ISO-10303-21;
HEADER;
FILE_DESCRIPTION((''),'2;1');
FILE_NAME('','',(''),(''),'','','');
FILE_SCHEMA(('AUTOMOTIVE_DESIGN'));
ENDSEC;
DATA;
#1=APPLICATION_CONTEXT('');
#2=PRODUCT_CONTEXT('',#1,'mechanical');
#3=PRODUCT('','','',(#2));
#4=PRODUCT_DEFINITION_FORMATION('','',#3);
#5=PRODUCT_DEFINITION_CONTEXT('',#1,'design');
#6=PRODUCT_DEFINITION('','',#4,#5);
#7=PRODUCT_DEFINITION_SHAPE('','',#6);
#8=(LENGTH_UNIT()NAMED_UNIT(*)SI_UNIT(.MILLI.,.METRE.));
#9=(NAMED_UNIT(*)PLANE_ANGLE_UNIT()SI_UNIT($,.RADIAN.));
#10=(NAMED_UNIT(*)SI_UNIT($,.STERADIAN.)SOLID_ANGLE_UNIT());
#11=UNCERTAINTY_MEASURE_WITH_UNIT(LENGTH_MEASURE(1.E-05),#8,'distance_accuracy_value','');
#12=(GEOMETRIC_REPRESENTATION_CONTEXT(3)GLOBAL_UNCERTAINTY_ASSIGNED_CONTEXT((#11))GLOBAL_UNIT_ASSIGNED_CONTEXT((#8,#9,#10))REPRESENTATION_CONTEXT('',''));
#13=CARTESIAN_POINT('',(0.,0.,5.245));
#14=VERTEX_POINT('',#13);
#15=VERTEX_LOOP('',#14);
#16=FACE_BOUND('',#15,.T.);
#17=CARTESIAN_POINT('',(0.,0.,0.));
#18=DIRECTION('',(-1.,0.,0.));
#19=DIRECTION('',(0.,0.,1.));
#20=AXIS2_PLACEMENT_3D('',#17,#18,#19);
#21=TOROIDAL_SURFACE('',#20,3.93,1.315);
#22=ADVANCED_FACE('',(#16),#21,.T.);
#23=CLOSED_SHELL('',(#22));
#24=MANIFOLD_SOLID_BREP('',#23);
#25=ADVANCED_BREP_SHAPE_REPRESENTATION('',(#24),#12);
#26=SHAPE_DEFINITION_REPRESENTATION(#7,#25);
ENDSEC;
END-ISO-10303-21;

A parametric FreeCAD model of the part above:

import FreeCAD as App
import Part
import Sketcher
from FreeCAD import Vector
Q = App.Units.Quantity

doc = App.newDocument("Part")
body = doc.addObject("PartDesign::Body", "Body")

# Sketch on XY plane
sketch1 = doc.addObject("Sketcher::SketchObject", "Sketch")
body.addObject(sketch1)
sketch1.AttachmentSupport = (doc.XY_Plane, [""])
sketch1.MapMode = "FlatFace"
sketch1.addGeometry(Part.Circle(Vector(0, 3.9, 0), Vector(0, 0, 1), 1.3), False)
sketch1.addConstraint(Sketcher.Constraint("PointOnObject", 0, 3, -2))
sketch1.addConstraint(Sketcher.Constraint("Diameter", 0, Q("2.63 mm")))
sketch1.addConstraint(Sketcher.Constraint("DistanceY", -1, 1, 0, 3, Q("3.93 mm")))
revolution = doc.addObject("PartDesign::Revolution", "Revolution")
body.addObject(revolution)
revolution.Profile = sketch1
revolution.ReferenceAxis = (sketch1, ["H_Axis"])
revolution.Angle = 360

doc.recompute()
